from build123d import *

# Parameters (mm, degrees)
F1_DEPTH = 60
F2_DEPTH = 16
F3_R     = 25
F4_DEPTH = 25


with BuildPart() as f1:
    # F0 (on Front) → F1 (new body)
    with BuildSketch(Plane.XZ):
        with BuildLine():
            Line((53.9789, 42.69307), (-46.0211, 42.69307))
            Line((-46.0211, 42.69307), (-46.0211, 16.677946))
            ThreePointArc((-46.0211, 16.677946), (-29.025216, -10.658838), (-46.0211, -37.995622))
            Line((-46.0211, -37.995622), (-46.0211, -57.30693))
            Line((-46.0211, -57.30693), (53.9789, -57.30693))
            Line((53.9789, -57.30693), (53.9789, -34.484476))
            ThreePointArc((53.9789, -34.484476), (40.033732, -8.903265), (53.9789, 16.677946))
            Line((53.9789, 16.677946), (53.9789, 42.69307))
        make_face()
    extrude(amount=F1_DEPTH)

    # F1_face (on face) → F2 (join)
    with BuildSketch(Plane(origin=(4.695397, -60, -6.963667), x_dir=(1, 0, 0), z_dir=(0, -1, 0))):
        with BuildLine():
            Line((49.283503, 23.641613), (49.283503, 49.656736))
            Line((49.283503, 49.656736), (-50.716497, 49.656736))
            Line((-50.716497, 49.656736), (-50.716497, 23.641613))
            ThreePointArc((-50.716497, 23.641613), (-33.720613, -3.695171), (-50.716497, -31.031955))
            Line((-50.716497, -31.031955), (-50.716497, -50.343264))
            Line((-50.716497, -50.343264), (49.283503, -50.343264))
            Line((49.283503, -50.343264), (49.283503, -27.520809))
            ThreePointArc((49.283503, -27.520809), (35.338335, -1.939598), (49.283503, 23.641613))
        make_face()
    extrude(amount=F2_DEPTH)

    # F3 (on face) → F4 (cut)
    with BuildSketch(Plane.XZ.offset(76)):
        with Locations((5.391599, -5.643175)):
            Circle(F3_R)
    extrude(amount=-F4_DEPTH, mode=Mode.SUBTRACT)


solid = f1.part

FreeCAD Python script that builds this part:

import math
import FreeCAD as App
import Part
import Sketcher
from FreeCAD import Vector

doc = App.newDocument("Part")
body = doc.addObject("PartDesign::Body", "Body")

sketch1 = body.newObject("Sketcher::SketchObject", "Sketch")
sketch1.AttachmentSupport = (doc.getObject("XZ_Plane"), [""])
sketch1.MapMode = "FlatFace"
sketch1.addGeometry(Part.LineSegment(Vector(53.9789, 42.69307, 0), Vector(-46.0211, 42.69307, 0)), False)
sketch1.addGeometry(Part.LineSegment(Vector(-46.0211, 42.69307, 0), Vector(-46.0211, 16.677946, 0)), False)
sketch1.addGeometry(Part.ArcOfCircle(Part.Circle(Vector(-59.507886, -10.658838, 0), Vector(0, 0, 1), 30.48267), math.radians(-63.740264), math.radians(63.740264)), False)
sketch1.addGeometry(Part.LineSegment(Vector(-46.0211, -37.995622, 0), Vector(-46.0211, -57.30693, 0)), False)
sketch1.addGeometry(Part.LineSegment(Vector(-46.0211, -57.30693, 0), Vector(53.9789, -57.30693, 0)), False)
sketch1.addGeometry(Part.LineSegment(Vector(53.9789, -57.30693, 0), Vector(53.9789, -34.484476, 0)), False)
sketch1.addGeometry(Part.ArcOfCircle(Part.Circle(Vector(70.469581, -8.903265, 0), Vector(0, 0, 1), 30.435849), math.radians(122.807462), math.radians(237.192538)), False)
sketch1.addGeometry(Part.LineSegment(Vector(53.9789, 16.677946, 0), Vector(53.9789, 42.69307, 0)), False)
sketch1.addConstraint(Sketcher.Constraint("Coincident", 0, 2, 1, 1))
sketch1.addConstraint(Sketcher.Constraint("Coincident", 1, 2, 2, 2))
sketch1.addConstraint(Sketcher.Constraint("Coincident", 2, 1, 3, 1))
sketch1.addConstraint(Sketcher.Constraint("Coincident", 3, 2, 4, 1))
sketch1.addConstraint(Sketcher.Constraint("Coincident", 4, 2, 5, 1))
sketch1.addConstraint(Sketcher.Constraint("Coincident", 5, 2, 6, 2))
sketch1.addConstraint(Sketcher.Constraint("Coincident", 6, 1, 7, 1))
sketch1.addConstraint(Sketcher.Constraint("Coincident", 7, 2, 0, 1))
sketch1.addConstraint(Sketcher.Constraint("Horizontal", 0))
sketch1.addConstraint(Sketcher.Constraint("Vertical", 1))
sketch1.addConstraint(Sketcher.Constraint("Vertical", 3))
sketch1.addConstraint(Sketcher.Constraint("Horizontal", 4))
sketch1.addConstraint(Sketcher.Constraint("Vertical", 5))
sketch1.addConstraint(Sketcher.Constraint("Vertical", 7))
sketch1.addConstraint(Sketcher.Constraint("Horizontal", 1, 2, 6, 1))
sketch1.addConstraint(Sketcher.Constraint("Vertical", 1, 2, 2, 1))
sketch1.addConstraint(Sketcher.Constraint("Vertical", 5, 2, 6, 1))
sketch1.addConstraint(Sketcher.Constraint("DistanceX", 0, 2, 0, 1, 100.0))
sketch1.addConstraint(Sketcher.Constraint("DistanceY", 3, 2, 0, 2, 100.0))
sketch1.addConstraint(Sketcher.Constraint("Radius", 2, 30.48267))
sketch1.addConstraint(Sketcher.Constraint("Radius", 6, 30.435849))
sketch1.addConstraint(Sketcher.Constraint("DistanceY", 3, 2, 3, 1, 19.311308))
sketch1.addConstraint(Sketcher.Constraint("DistanceX", 0, 2, -1, 1, 46.0211))
sketch1.addConstraint(Sketcher.Constraint("DistanceY", 1, 2, 1, 1, 26.015124))
sketch1.addConstraint(Sketcher.Constraint("DistanceY", 5, 1, 5, 2, 22.822454))
sketch1.addConstraint(Sketcher.Constraint("DistanceY", -1, 1, 0, 2, 42.69307))
pad1 = body.newObject("PartDesign::Pad", "Pad")
pad1.Profile = sketch1
pad1.Length = 60

sketch2 = body.newObject("Sketcher::SketchObject", "Sketch001")
sketch2.AttachmentSupport = (doc.getObject("XZ_Plane"), [""])
sketch2.MapMode = "FlatFace"
sketch2.AttachmentOffset = App.Placement(Vector(0, 0, 60), App.Rotation())
sketch2.addGeometry(Part.LineSegment(Vector(53.9789, 16.677946, 0), Vector(53.9789, 42.693069, 0)), False)
sketch2.addGeometry(Part.LineSegment(Vector(53.9789, 42.693069, 0), Vector(-46.0211, 42.693069, 0)), False)
sketch2.addGeometry(Part.LineSegment(Vector(-46.0211, 42.693069, 0), Vector(-46.0211, 16.677946, 0)), False)
sketch2.addGeometry(Part.ArcOfCircle(Part.Circle(Vector(-59.507886, -10.658838, 0), Vector(0, 0, 1), 30.48267), math.radians(-63.740264), math.radians(63.740264)), False)
sketch2.addGeometry(Part.LineSegment(Vector(-46.0211, -37.995622, 0), Vector(-46.0211, -57.306931, 0)), False)
sketch2.addGeometry(Part.LineSegment(Vector(-46.0211, -57.306931, 0), Vector(53.9789, -57.306931, 0)), False)
sketch2.addGeometry(Part.LineSegment(Vector(53.9789, -57.306931, 0), Vector(53.9789, -34.484476, 0)), False)
sketch2.addGeometry(Part.ArcOfCircle(Part.Circle(Vector(70.469581, -8.903265, 0), Vector(0, 0, 1), 30.435849), math.radians(122.807462), math.radians(237.192538)), False)
sketch2.addConstraint(Sketcher.Constraint("Coincident", 0, 2, 1, 1))
sketch2.addConstraint(Sketcher.Constraint("Coincident", 1, 2, 2, 1))
sketch2.addConstraint(Sketcher.Constraint("Coincident", 2, 2, 3, 2))
sketch2.addConstraint(Sketcher.Constraint("Coincident", 3, 1, 4, 1))
sketch2.addConstraint(Sketcher.Constraint("Coincident", 4, 2, 5, 1))
sketch2.addConstraint(Sketcher.Constraint("Coincident", 5, 2, 6, 1))
sketch2.addConstraint(Sketcher.Constraint("Coincident", 6, 2, 7, 2))
sketch2.addConstraint(Sketcher.Constraint("Coincident", 7, 1, 0, 1))
sketch2.addConstraint(Sketcher.Constraint("Vertical", 0))
sketch2.addConstraint(Sketcher.Constraint("Horizontal", 1))
sketch2.addConstraint(Sketcher.Constraint("Vertical", 2))
sketch2.addConstraint(Sketcher.Constraint("Vertical", 4))
sketch2.addConstraint(Sketcher.Constraint("Horizontal", 5))
sketch2.addConstraint(Sketcher.Constraint("Vertical", 6))
sketch2.addConstraint(Sketcher.Constraint("Horizontal", 2, 2, 7, 1))
sketch2.addConstraint(Sketcher.Constraint("Vertical", 2, 2, 3, 1))
sketch2.addConstraint(Sketcher.Constraint("Vertical", 0, 2, 5, 2))
sketch2.addConstraint(Sketcher.Constraint("DistanceX", 1, 2, 1, 1, 100.0))
sketch2.addConstraint(Sketcher.Constraint("DistanceY", 4, 2, 1, 2, 100.0))
sketch2.addConstraint(Sketcher.Constraint("Radius", 3, 30.48267))
sketch2.addConstraint(Sketcher.Constraint("Radius", 7, 30.435849))
sketch2.addConstraint(Sketcher.Constraint("DistanceY", 4, 2, 4, 1, 19.311309))
sketch2.addConstraint(Sketcher.Constraint("DistanceX", -1, 1, 0, 2, 53.9789))
sketch2.addConstraint(Sketcher.Constraint("DistanceY", 0, 1, 0, 2, 26.015123))
sketch2.addConstraint(Sketcher.Constraint("DistanceY", 6, 1, 6, 2, 22.822455))
sketch2.addConstraint(Sketcher.Constraint("DistanceY", -1, 1, 0, 2, 42.693069))
pad2 = body.newObject("PartDesign::Pad", "Pad001")
pad2.Profile = sketch2
pad2.Length = 16

sketch3 = body.newObject("Sketcher::SketchObject", "Sketch002")
sketch3.AttachmentSupport = (doc.getObject("XZ_Plane"), [""])
sketch3.MapMode = "FlatFace"
sketch3.AttachmentOffset = App.Placement(Vector(0, 0, 76), App.Rotation())
sketch3.addGeometry(Part.Circle(Vector(5.391599, -5.643175, 0), Vector(0, 0, 1), 25), False)
sketch3.addConstraint(Sketcher.Constraint("Diameter", 0, 50.0))
sketch3.addConstraint(Sketcher.Constraint("DistanceX", -1, 1, 0, 3, 5.391599))
sketch3.addConstraint(Sketcher.Constraint("DistanceY", 0, 3, -1, 1, 5.643175))
pocket1 = body.newObject("PartDesign::Pocket", "Pocket")
pocket1.Profile = sketch3
pocket1.Length = 25

doc.recompute()
